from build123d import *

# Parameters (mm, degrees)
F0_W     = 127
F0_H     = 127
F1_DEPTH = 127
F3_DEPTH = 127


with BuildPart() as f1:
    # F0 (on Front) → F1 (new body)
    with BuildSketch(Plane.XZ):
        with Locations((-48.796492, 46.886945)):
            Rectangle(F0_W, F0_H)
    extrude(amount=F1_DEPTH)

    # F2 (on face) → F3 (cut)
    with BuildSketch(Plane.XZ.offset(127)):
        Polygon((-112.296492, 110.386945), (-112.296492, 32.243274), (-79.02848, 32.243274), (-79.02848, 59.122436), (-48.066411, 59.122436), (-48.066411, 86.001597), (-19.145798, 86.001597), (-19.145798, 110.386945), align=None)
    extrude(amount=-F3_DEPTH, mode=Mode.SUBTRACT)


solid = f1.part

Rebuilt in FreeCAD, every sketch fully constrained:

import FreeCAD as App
import Part
import Sketcher
from FreeCAD import Vector
Q = App.Units.Quantity


def add_polygon(sketch, points):
    """Adds a closed chain of lines whose ends are joined by coincident constraints."""
    first, n = sketch.GeometryCount, len(points)
    for a, b in zip(points, points[1:] + points[:1]):
        sketch.addGeometry(Part.LineSegment(App.Vector(*a, 0), App.Vector(*b, 0)), False)
    for i in range(n):
        sketch.addConstraint(Sketcher.Constraint("Coincident", first + i, 2, first + (i + 1) % n, 1))

doc = App.newDocument("Part")
body = doc.addObject("PartDesign::Body", "Body")

sketch1 = body.newObject("Sketcher::SketchObject", "Sketch")
sketch1.AttachmentSupport = (doc.getObject("XZ_Plane"), [""])
sketch1.MapMode = "FlatFace"
add_polygon(sketch1, [(-112.296492, 110.386945), (-112.296492, -16.613055), (14.703508, -16.613055), (14.703508, 110.386945)])
sketch1.addConstraint([
    Sketcher.Constraint("Vertical", 0),
    Sketcher.Constraint("Horizontal", 1),
    Sketcher.Constraint("Vertical", 2),
    Sketcher.Constraint("Horizontal", 3),
    Sketcher.Constraint("Equal", 3, 0),
    Sketcher.Constraint("DistanceX", 1, 1, 1, 2, Q("5 in")),
    Sketcher.Constraint("DistanceX", 0, 2, -1, 1, 112.296492),
    Sketcher.Constraint("DistanceY", 0, 2, -1, 1, 16.613055),
])
pad1 = body.newObject("PartDesign::Pad", "Pad")
pad1.Profile = sketch1
pad1.Length = Q("5 in")

sketch2 = body.newObject("Sketcher::SketchObject", "Sketch001")
sketch2.AttachmentSupport = (doc.getObject("XZ_Plane"), [""])
sketch2.MapMode = "FlatFace"
sketch2.AttachmentOffset = App.Placement(Vector(0, 0, 5 * 25.4), App.Rotation())
add_polygon(sketch2, [(-112.296492, 110.386945), (-112.296492, 32.243274), (-79.02848, 32.243274), (-79.02848, 59.122436), (-48.066411, 59.122436), (-48.066411, 86.001597), (-19.145798, 86.001597), (-19.145798, 110.386945)])
sketch2.addConstraint([
    Sketcher.Constraint("Vertical", 0),
    Sketcher.Constraint("Horizontal", 1),
    Sketcher.Constraint("Vertical", 2),
    Sketcher.Constraint("Horizontal", 3),
    Sketcher.Constraint("Vertical", 4),
    Sketcher.Constraint("Horizontal", 5),
    Sketcher.Constraint("Vertical", 6),
    Sketcher.Constraint("Horizontal", 7),
    Sketcher.Constraint("Equal", 2, 4),
    Sketcher.Constraint("DistanceX", 3, 1, 3, 2, 30.962069),
    Sketcher.Constraint("DistanceY", 0, 2, 0, 1, 78.143671),
    Sketcher.Constraint("DistanceY", 4, 1, 4, 2, 26.879161),
    Sketcher.Constraint("DistanceX", 1, 1, 1, 2, 33.268012),
    Sketcher.Constraint("DistanceX", 5, 1, 5, 2, 28.920613),
    Sketcher.Constraint("DistanceX", 0, 2, -1, 1, 112.296492),
    Sketcher.Constraint("DistanceY", -1, 1, 0, 2, 32.243274),
])
pocket1 = body.newObject("PartDesign::Pocket", "Pocket")
pocket1.Profile = sketch2
pocket1.Length = Q("5 in")

doc.recompute()
